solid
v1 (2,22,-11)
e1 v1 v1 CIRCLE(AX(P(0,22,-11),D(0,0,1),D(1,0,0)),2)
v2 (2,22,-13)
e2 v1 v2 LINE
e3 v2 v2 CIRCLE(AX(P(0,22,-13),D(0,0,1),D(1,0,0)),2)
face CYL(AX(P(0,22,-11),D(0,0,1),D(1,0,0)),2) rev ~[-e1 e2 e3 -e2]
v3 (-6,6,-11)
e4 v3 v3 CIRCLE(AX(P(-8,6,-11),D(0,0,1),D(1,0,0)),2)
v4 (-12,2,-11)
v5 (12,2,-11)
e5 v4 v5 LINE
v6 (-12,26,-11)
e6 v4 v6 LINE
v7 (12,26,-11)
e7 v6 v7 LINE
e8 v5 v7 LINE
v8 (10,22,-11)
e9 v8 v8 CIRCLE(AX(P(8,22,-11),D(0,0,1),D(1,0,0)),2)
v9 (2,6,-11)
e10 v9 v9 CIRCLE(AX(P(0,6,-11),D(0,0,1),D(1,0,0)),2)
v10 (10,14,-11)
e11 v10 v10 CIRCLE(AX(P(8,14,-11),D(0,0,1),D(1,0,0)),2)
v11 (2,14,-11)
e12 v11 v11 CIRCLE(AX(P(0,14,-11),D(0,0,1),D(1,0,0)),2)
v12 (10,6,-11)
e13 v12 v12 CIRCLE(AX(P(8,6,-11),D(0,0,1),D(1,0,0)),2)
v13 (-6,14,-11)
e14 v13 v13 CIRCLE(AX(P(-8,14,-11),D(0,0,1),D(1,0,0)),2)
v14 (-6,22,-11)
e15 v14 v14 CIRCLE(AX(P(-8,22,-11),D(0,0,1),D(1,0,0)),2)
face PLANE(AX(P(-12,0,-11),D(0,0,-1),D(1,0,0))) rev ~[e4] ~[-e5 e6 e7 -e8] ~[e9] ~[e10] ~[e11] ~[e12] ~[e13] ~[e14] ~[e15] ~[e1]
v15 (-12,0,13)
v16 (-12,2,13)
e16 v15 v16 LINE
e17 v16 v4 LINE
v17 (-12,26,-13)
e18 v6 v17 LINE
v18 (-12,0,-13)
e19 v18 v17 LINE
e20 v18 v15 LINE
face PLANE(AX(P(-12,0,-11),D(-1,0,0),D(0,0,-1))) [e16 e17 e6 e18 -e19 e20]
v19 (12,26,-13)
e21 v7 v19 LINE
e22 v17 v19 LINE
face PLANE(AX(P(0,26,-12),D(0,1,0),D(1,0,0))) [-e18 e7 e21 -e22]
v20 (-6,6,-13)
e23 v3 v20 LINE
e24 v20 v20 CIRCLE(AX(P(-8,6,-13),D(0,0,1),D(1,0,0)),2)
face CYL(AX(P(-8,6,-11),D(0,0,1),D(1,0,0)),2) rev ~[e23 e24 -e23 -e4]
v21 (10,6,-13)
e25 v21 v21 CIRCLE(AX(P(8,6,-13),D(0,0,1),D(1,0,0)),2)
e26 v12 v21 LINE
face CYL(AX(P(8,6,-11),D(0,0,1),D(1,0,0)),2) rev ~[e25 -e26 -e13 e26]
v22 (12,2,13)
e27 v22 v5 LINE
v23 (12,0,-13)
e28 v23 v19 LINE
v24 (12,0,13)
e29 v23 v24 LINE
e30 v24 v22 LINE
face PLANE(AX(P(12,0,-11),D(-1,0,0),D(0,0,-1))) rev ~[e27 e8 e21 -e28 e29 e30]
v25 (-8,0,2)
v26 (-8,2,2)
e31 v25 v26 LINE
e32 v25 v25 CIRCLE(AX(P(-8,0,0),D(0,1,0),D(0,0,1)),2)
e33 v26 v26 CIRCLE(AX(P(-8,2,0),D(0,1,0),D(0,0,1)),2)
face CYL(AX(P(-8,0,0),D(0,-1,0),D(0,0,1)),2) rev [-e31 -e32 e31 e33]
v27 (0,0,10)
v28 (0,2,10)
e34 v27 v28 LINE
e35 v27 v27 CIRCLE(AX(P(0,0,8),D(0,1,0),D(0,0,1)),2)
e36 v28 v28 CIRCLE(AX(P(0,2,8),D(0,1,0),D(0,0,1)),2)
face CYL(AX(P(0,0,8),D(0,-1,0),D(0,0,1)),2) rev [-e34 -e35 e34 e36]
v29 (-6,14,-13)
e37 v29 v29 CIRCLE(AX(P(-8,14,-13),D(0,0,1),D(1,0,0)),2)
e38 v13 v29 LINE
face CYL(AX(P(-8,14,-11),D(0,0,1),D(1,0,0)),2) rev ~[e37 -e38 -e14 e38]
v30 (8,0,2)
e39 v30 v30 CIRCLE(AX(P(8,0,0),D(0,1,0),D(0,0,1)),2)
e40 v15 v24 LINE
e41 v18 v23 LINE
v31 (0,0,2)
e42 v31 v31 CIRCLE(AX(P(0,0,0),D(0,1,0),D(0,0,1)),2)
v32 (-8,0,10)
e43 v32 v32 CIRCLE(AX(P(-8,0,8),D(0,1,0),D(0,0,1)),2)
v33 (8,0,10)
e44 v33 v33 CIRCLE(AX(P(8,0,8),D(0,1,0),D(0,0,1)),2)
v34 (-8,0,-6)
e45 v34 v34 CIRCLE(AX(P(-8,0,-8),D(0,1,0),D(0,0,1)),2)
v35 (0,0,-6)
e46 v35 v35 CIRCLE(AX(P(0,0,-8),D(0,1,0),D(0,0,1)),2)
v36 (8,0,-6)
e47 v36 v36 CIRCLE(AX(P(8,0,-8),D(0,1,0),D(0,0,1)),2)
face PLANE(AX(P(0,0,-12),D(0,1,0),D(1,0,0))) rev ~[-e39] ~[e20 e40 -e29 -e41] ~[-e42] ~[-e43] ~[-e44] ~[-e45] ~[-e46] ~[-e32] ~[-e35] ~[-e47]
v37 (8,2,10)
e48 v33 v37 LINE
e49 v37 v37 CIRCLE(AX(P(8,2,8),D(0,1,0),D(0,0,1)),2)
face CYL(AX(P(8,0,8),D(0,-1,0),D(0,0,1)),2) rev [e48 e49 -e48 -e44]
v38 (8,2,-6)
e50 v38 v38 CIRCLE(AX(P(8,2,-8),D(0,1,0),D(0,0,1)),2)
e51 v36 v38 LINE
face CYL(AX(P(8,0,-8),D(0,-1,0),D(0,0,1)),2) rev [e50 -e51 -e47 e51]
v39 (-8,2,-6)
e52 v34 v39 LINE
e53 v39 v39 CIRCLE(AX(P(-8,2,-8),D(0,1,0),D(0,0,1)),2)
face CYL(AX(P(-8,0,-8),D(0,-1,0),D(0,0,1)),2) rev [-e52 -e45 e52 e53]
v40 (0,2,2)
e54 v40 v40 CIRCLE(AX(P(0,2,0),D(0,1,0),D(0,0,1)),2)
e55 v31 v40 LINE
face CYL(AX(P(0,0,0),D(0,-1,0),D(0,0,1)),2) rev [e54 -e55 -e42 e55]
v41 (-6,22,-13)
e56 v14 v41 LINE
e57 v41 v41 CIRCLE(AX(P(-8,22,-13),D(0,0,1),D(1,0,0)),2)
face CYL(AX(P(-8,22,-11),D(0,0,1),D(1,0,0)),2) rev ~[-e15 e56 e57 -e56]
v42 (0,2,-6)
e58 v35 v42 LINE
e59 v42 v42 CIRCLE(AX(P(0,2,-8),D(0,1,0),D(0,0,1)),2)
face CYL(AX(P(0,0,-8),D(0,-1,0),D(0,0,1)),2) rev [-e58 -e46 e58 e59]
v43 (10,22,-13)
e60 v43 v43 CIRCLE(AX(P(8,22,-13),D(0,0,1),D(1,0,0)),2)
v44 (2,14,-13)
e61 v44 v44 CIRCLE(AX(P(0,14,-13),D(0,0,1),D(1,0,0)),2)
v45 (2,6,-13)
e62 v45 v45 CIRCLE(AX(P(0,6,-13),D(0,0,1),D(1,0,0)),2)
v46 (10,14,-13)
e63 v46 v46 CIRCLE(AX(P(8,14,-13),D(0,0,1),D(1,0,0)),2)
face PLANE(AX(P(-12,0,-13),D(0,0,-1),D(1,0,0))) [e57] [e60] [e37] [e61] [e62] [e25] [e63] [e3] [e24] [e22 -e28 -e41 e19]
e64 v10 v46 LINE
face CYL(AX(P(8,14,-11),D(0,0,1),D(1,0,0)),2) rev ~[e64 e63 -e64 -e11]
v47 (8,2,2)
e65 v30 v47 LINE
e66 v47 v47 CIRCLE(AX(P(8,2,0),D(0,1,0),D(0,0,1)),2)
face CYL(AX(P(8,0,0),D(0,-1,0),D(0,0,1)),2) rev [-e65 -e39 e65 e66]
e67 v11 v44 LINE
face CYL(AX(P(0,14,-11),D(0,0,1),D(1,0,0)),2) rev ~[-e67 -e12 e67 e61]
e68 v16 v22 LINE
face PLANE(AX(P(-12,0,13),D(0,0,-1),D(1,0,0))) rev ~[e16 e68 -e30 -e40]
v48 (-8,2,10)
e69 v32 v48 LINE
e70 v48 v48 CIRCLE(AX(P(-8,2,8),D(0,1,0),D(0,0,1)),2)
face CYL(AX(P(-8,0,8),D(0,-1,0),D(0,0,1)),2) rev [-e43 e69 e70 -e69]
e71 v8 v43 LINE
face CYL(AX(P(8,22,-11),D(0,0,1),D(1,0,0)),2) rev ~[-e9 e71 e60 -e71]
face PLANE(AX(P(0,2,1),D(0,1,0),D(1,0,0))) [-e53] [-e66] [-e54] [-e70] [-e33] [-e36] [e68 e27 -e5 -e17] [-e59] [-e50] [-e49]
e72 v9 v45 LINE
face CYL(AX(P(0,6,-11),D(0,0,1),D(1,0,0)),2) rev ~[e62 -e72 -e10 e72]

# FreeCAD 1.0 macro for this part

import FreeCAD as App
import Part
import Sketcher

V = App.Vector

doc = App.newDocument("Part")
body = doc.addObject("PartDesign::Body", "Body")

# Sketch on XZ plane
sketch1 = body.newObject("Sketcher::SketchObject", "Sketch")
sketch1.AttachmentSupport = (doc.getObject("XZ_Plane"), [""])
sketch1.MapMode = "FlatFace"
sketch1.addGeometry([
    Part.LineSegment(V(-12, -11, 0), V(-12, 13, 0)),  # 0
    Part.LineSegment(V(-12, 13, 0), V(12, 13, 0)),  # 1
    Part.LineSegment(V(12, 13, 0), V(12, -11, 0)),  # 2
    Part.LineSegment(V(12, -11, 0), V(-12, -11, 0)),  # 3
    Part.Circle(V(-8, 8, 0), V(0, 0, 1), 2),  # 4
    Part.Circle(V(0, 8, 0), V(0, 0, 1), 2),  # 5
    Part.Circle(V(8, 8, 0), V(0, 0, 1), 2),  # 6
    Part.Circle(V(-8, 0, 0), V(0, 0, 1), 2),  # 7
    Part.Circle(V(-8, -8, 0), V(0, 0, 1), 2),  # 8
    Part.Circle(V(0, 0, 0), V(0, 0, 1), 2),  # 9
    Part.Circle(V(8, 0, 0), V(0, 0, 1), 2),  # 10
    Part.Circle(V(0, -8, 0), V(0, 0, 1), 2),  # 11
    Part.Circle(V(8, -8, 0), V(0, 0, 1), 2),  # 12
], False)
sketch1.addConstraint([
    Sketcher.Constraint("Coincident", 0, 2, 1, 1),
    Sketcher.Constraint("Coincident", 1, 2, 2, 1),
    Sketcher.Constraint("Coincident", 2, 2, 3, 1),
    Sketcher.Constraint("Coincident", 3, 2, 0, 1),
    Sketcher.Constraint("Vertical", 0),
    Sketcher.Constraint("Horizontal", 1),
    Sketcher.Constraint("Vertical", 2),
    Sketcher.Constraint("Horizontal", 3),
    Sketcher.Constraint("Coincident", 9, 3, -1, 1),
    Sketcher.Constraint("Equal", 4, 5),
    Sketcher.Constraint("Equal", 5, 6),
    Sketcher.Constraint("Equal", 6, 7),
    Sketcher.Constraint("Equal", 7, 8),
    Sketcher.Constraint("Equal", 8, 9),
    Sketcher.Constraint("Equal", 9, 10),
    Sketcher.Constraint("Equal", 10, 11),
    Sketcher.Constraint("Equal", 11, 12),
    Sketcher.Constraint("Symmetric", 6, 3, 8, 3, -1, 1),
    Sketcher.Constraint("Symmetric", 7, 3, 10, 3, -1, 1),
    Sketcher.Constraint("Symmetric", 5, 3, 11, 3, -1, 1),
    Sketcher.Constraint("Symmetric", 4, 3, 12, 3, -1, 1),
    Sketcher.Constraint("Symmetric", 4, 3, 6, 3, -2),
    Sketcher.Constraint("PointOnObject", 5, 3, -2),
    Sketcher.Constraint("PointOnObject", 7, 3, -1),
    Sketcher.Constraint("Horizontal", 4, 3, 5, 3),
    Sketcher.Constraint("Vertical", 4, 3, 7, 3),
    Sketcher.Constraint("Equal", 3, 0),
    Sketcher.Constraint("Diameter", 4, 4.0),
    Sketcher.Constraint("DistanceX", 1, 1, 1, 2, 24.0),
    Sketcher.Constraint("DistanceX", 4, 3, -1, 1, 8.0),
    Sketcher.Constraint("DistanceY", -1, 1, 4, 3, 8.0),
    Sketcher.Constraint("DistanceX", 0, 2, -1, 1, 12.0),
    Sketcher.Constraint("DistanceY", -1, 1, 0, 2, 13.0),
])
pad1 = body.newObject("PartDesign::Pad", "Pad")
pad1.Profile = sketch1
pad1.Length = 2
pad1.Reversed = True

# Sketch on XZ plane
sketch2 = body.newObject("Sketcher::SketchObject", "Sketch001")
sketch2.AttachmentSupport = (doc.getObject("XZ_Plane"), [""])
sketch2.MapMode = "FlatFace"
sketch2.addGeometry([
    Part.LineSegment(V(-12, -13, 0), V(-12, -11, 0)),
    Part.LineSegment(V(-12, -11, 0), V(12, -11, 0)),
    Part.LineSegment(V(12, -11, 0), V(12, -13, 0)),
    Part.LineSegment(V(12, -13, 0), V(-12, -13, 0)),
], False)
sketch2.addConstraint([
    Sketcher.Constraint("Coincident", 0, 2, 1, 1),
    Sketcher.Constraint("Coincident", 1, 2, 2, 1),
    Sketcher.Constraint("Coincident", 2, 2, 3, 1),
    Sketcher.Constraint("Coincident", 3, 2, 0, 1),
    Sketcher.Constraint("Vertical", 0),
    Sketcher.Constraint("Horizontal", 1),
    Sketcher.Constraint("Vertical", 2),
    Sketcher.Constraint("Horizontal", 3),
    Sketcher.Constraint("DistanceX", 1, 1, 1, 2, 24.0),
    Sketcher.Constraint("DistanceY", 0, 1, 0, 2, 2.0),
    Sketcher.Constraint("DistanceX", 0, 2, -1, 1, 12.0),
    Sketcher.Constraint("DistanceY", 0, 2, -1, 1, 11.0),
])
pad2 = body.newObject("PartDesign::Pad", "Pad001")
pad2.Profile = sketch2
pad2.Length = 26
pad2.Reversed = True

# Sketch on XY plane
sketch3 = body.newObject("Sketcher::SketchObject", "Sketch002")
sketch3.AttachmentSupport = (doc.getObject("XY_Plane"), [""])
sketch3.MapMode = "FlatFace"
sketch3.AttachmentOffset = App.Placement(V(0, 0, -11), App.Rotation())
sketch3.addGeometry([
    Part.Circle(V(-8, 22, 0), V(0, 0, 1), 2),  # 0
    Part.Circle(V(0, 22, 0), V(0, 0, 1), 2),  # 1
    Part.Circle(V(8, 22, 0), V(0, 0, 1), 2),  # 2
    Part.Circle(V(-8, 14, 0), V(0, 0, 1), 2),  # 3
    Part.Circle(V(0, 14, 0), V(0, 0, 1), 2),  # 4
    Part.Circle(V(8, 14, 0), V(0, 0, 1), 2),  # 5
    Part.Circle(V(8, 6, 0), V(0, 0, 1), 2),  # 6
    Part.Circle(V(0, 6, 0), V(0, 0, 1), 2),  # 7
    Part.Circle(V(-8, 6, 0), V(0, 0, 1), 2),  # 8
], False)
sketch3.addConstraint([
    Sketcher.Constraint("Equal", 0, 1),
    Sketcher.Constraint("Equal", 1, 2),
    Sketcher.Constraint("Equal", 2, 3),
    Sketcher.Constraint("Equal", 3, 4),
    Sketcher.Constraint("Equal", 4, 5),
    Sketcher.Constraint("Equal", 5, 6),
    Sketcher.Constraint("Equal", 6, 7),
    Sketcher.Constraint("Equal", 7, 8),
    Sketcher.Constraint("Symmetric", 0, 3, 2, 3, -2),
    Sketcher.Constraint("Symmetric", 3, 3, 5, 3, -2),
    Sketcher.Constraint("Symmetric", 6, 3, 8, 3, -2),
    Sketcher.Constraint("PointOnObject", 1, 3, -2),
    Sketcher.Constraint("PointOnObject", 4, 3, -2),
    Sketcher.Constraint("PointOnObject", 7, 3, -2),
    Sketcher.Constraint("Horizontal", 0, 3, 1, 3),
    Sketcher.Constraint("Horizontal", 3, 3, 4, 3),
    Sketcher.Constraint("Horizontal", 6, 3, 7, 3),
    Sketcher.Constraint("Vertical", 0, 3, 3, 3),
    Sketcher.Constraint("Vertical", 5, 3, 6, 3),
    Sketcher.Constraint("Diameter", 0, 4.0),
    Sketcher.Constraint("DistanceX", 0, 3, -1, 1, 8.0),
    Sketcher.Constraint("DistanceY", -1, 1, 0, 3, 22.0),
    Sketcher.Constraint("DistanceY", -1, 1, 3, 3, 14.0),
    Sketcher.Constraint("DistanceY", -1, 1, 6, 3, 6.0),
])
pocket1 = body.newObject("PartDesign::Pocket", "Pocket")
pocket1.Profile = sketch3
pocket1.Length = 26

doc.recompute()
